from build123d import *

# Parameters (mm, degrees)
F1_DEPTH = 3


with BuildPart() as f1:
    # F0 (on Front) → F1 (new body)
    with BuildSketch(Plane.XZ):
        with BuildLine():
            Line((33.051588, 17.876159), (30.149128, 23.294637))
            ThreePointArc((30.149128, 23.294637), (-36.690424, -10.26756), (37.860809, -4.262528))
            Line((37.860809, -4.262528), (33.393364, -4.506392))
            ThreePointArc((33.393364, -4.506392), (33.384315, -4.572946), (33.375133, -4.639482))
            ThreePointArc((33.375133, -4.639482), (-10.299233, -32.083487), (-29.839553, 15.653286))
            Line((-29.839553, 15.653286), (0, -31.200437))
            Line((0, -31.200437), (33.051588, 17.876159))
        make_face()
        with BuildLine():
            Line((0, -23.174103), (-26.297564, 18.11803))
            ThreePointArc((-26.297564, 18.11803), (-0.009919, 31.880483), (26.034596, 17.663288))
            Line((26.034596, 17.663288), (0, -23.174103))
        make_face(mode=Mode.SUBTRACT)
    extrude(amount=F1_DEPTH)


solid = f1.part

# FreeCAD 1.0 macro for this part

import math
import FreeCAD as App
import Part
import Sketcher

V = App.Vector

doc = App.newDocument("Part")
body = doc.addObject("PartDesign::Body", "Body")

sketch1 = body.newObject("Sketcher::SketchObject", "Sketch")
sketch1.AttachmentSupport = (doc.getObject("XZ_Plane"), [""])
sketch1.MapMode = "FlatFace"
sketch1.addGeometry(Part.LineSegment(V(33.05, 17.88, 0), V(30.15, 23.29, 0)), False)
sketch1.addGeometry(Part.ArcOfCircle(Part.Circle(V(0, 0, 0), V(0, 0, 1), 38.1), math.radians(38), math.radians(354)), False)
sketch1.addGeometry(Part.LineSegment(V(37.86, -4.26, 0), V(33.39, -4.51, 0)), False)
sketch1.addGeometry(Part.ArcOfCircle(Part.Circle(V(0.08, -0.01, 0), V(0, 0, 1), 33.61), math.radians(-7.91), math.radians(-7.69)), False)
sketch1.addGeometry(Part.ArcOfCircle(Part.Circle(V(0, 0, 0), V(0, 0, 1), 33.7), math.radians(152), math.radians(352)), False)
sketch1.addGeometry(Part.LineSegment(V(-29.84, 15.65, 0), V(0, -31.2, 0)), False)
sketch1.addGeometry(Part.LineSegment(V(0, -31.2, 0), V(33.05, 17.88, 0)), False)
sketch1.addGeometry(Part.LineSegment(V(26.03, 17.66, 0), V(0, -23.17, 0)), False)
sketch1.addGeometry(Part.LineSegment(V(0, -23.17, 0), V(-26.3, 18.12, 0)), False)
sketch1.addGeometry(Part.ArcOfCircle(Part.Circle(V(-0.28, 0.42, 0), V(0, 0, 1), 31.47), math.radians(33), math.radians(146)), False)
sketch1.addConstraint(Sketcher.Constraint("Coincident", 0, 2, 1, 1))
sketch1.addConstraint(Sketcher.Constraint("Coincident", 1, 2, 2, 1))
sketch1.addConstraint(Sketcher.Constraint("Coincident", 2, 2, 3, 2))
sketch1.addConstraint(Sketcher.Constraint("Coincident", 3, 1, 4, 2))
sketch1.addConstraint(Sketcher.Constraint("Coincident", 4, 1, 5, 1))
sketch1.addConstraint(Sketcher.Constraint("Coincident", 5, 2, 6, 1))
sketch1.addConstraint(Sketcher.Constraint("Coincident", 6, 2, 0, 1))
sketch1.addConstraint(Sketcher.Constraint("Coincident", 7, 2, 8, 1))
sketch1.addConstraint(Sketcher.Constraint("Coincident", 8, 2, 9, 2))
sketch1.addConstraint(Sketcher.Constraint("Coincident", 9, 1, 7, 1))
sketch1.addConstraint(Sketcher.Constraint("Coincident", 1, 3, -1, 1))
sketch1.addConstraint(Sketcher.Constraint("Coincident", 4, 3, -1, 1))
sketch1.addConstraint(Sketcher.Constraint("PointOnObject", 5, 2, -2))
sketch1.addConstraint(Sketcher.Constraint("PointOnObject", 7, 2, -2))
sketch1.addConstraint(Sketcher.Constraint("Parallel", 5, 8))
sketch1.addConstraint(Sketcher.Constraint("Radius", 1, 38.1))
sketch1.addConstraint(Sketcher.Constraint("Radius", 3, 33.613405))
sketch1.addConstraint(Sketcher.Constraint("Radius", 4, 33.696058))
sketch1.addConstraint(Sketcher.Constraint("Radius", 9, 31.466163))
sketch1.addConstraint(Sketcher.Constraint("DistanceY", 3, 3, -1, 1, 0.011099))
sketch1.addConstraint(Sketcher.Constraint("Distance", 5, 55.54881))
sketch1.addConstraint(Sketcher.Constraint("Distance", 6, 59.168571))
sketch1.addConstraint(Sketcher.Constraint("DistanceY", -1, 1, 9, 3, 0.415508))
sketch1.addConstraint(Sketcher.Constraint("DistanceX", -1, 1, 0, 2, 30.149128))
sketch1.addConstraint(Sketcher.Constraint("DistanceX", -1, 1, 1, 2, 37.860809))
sketch1.addConstraint(Sketcher.Constraint("DistanceY", 3, 1, -1, 1, 4.639482))
sketch1.addConstraint(Sketcher.Constraint("DistanceX", -1, 1, 6, 2, 33.051588))
sketch1.addConstraint(Sketcher.Constraint("DistanceY", -1, 1, 6, 2, 17.876159))
sketch1.addConstraint(Sketcher.Constraint("DistanceY", -1, 1, 8, 2, 18.11803))
sketch1.addConstraint(Sketcher.Constraint("DistanceX", 9, 3, 3, 3, 0.365239))
sketch1.addConstraint(Sketcher.Constraint("DistanceY", 2, 2, 0, 2, 27.801029))
sketch1.addConstraint(Sketcher.Constraint("DistanceY", 9, 1, 0, 2, 5.631349))
pad1 = body.newObject("PartDesign::Pad", "Pad")
pad1.Profile = sketch1
pad1.Length = 3

doc.recompute()
